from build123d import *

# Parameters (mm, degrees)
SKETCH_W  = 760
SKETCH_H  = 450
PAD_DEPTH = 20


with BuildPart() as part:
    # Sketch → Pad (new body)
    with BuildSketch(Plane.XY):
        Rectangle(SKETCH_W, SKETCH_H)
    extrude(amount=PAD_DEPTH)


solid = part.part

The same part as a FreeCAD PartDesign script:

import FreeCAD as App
import Part
import Sketcher
from FreeCAD import Vector

doc = App.newDocument("Part")
body = doc.addObject("PartDesign::Body", "Body")

sketch1 = doc.addObject("Sketcher::SketchObject", "Sketch")
body.addObject(sketch1)
sketch1.AttachmentSupport = (doc.XY_Plane, [""])
sketch1.MapMode = "FlatFace"
sketch1.addGeometry(Part.LineSegment(Vector(-380, 225, 0), Vector(-380, -225, 0)), False)
sketch1.addGeometry(Part.LineSegment(Vector(-380, -225, 0), Vector(380, -225, 0)), False)
sketch1.addGeometry(Part.LineSegment(Vector(380, -225, 0), Vector(380, 225, 0)), False)
sketch1.addGeometry(Part.LineSegment(Vector(380, 225, 0), Vector(-380, 225, 0)), False)
sketch1.addConstraint(Sketcher.Constraint("Coincident", 0, 2, 1, 1))
sketch1.addConstraint(Sketcher.Constraint("Coincident", 1, 2, 2, 1))
sketch1.addConstraint(Sketcher.Constraint("Coincident", 2, 2, 3, 1))
sketch1.addConstraint(Sketcher.Constraint("Coincident", 3, 2, 0, 1))
sketch1.addConstraint(Sketcher.Constraint("Vertical", 0))
sketch1.addConstraint(Sketcher.Constraint("Horizontal", 1))
sketch1.addConstraint(Sketcher.Constraint("Vertical", 2))
sketch1.addConstraint(Sketcher.Constraint("Horizontal", 3))
sketch1.addConstraint(Sketcher.Constraint("Symmetric", 0, 2, 2, 2, -1, 1))
sketch1.addConstraint(Sketcher.Constraint("DistanceX", 1, 1, 1, 2, 760.0))
sketch1.addConstraint(Sketcher.Constraint("DistanceY", 0, 2, 0, 1, 450.0))
pad1 = doc.addObject("PartDesign::Pad", "Pad")
body.addObject(pad1)
pad1.Profile = sketch1
pad1.Length = 20

doc.recompute()
